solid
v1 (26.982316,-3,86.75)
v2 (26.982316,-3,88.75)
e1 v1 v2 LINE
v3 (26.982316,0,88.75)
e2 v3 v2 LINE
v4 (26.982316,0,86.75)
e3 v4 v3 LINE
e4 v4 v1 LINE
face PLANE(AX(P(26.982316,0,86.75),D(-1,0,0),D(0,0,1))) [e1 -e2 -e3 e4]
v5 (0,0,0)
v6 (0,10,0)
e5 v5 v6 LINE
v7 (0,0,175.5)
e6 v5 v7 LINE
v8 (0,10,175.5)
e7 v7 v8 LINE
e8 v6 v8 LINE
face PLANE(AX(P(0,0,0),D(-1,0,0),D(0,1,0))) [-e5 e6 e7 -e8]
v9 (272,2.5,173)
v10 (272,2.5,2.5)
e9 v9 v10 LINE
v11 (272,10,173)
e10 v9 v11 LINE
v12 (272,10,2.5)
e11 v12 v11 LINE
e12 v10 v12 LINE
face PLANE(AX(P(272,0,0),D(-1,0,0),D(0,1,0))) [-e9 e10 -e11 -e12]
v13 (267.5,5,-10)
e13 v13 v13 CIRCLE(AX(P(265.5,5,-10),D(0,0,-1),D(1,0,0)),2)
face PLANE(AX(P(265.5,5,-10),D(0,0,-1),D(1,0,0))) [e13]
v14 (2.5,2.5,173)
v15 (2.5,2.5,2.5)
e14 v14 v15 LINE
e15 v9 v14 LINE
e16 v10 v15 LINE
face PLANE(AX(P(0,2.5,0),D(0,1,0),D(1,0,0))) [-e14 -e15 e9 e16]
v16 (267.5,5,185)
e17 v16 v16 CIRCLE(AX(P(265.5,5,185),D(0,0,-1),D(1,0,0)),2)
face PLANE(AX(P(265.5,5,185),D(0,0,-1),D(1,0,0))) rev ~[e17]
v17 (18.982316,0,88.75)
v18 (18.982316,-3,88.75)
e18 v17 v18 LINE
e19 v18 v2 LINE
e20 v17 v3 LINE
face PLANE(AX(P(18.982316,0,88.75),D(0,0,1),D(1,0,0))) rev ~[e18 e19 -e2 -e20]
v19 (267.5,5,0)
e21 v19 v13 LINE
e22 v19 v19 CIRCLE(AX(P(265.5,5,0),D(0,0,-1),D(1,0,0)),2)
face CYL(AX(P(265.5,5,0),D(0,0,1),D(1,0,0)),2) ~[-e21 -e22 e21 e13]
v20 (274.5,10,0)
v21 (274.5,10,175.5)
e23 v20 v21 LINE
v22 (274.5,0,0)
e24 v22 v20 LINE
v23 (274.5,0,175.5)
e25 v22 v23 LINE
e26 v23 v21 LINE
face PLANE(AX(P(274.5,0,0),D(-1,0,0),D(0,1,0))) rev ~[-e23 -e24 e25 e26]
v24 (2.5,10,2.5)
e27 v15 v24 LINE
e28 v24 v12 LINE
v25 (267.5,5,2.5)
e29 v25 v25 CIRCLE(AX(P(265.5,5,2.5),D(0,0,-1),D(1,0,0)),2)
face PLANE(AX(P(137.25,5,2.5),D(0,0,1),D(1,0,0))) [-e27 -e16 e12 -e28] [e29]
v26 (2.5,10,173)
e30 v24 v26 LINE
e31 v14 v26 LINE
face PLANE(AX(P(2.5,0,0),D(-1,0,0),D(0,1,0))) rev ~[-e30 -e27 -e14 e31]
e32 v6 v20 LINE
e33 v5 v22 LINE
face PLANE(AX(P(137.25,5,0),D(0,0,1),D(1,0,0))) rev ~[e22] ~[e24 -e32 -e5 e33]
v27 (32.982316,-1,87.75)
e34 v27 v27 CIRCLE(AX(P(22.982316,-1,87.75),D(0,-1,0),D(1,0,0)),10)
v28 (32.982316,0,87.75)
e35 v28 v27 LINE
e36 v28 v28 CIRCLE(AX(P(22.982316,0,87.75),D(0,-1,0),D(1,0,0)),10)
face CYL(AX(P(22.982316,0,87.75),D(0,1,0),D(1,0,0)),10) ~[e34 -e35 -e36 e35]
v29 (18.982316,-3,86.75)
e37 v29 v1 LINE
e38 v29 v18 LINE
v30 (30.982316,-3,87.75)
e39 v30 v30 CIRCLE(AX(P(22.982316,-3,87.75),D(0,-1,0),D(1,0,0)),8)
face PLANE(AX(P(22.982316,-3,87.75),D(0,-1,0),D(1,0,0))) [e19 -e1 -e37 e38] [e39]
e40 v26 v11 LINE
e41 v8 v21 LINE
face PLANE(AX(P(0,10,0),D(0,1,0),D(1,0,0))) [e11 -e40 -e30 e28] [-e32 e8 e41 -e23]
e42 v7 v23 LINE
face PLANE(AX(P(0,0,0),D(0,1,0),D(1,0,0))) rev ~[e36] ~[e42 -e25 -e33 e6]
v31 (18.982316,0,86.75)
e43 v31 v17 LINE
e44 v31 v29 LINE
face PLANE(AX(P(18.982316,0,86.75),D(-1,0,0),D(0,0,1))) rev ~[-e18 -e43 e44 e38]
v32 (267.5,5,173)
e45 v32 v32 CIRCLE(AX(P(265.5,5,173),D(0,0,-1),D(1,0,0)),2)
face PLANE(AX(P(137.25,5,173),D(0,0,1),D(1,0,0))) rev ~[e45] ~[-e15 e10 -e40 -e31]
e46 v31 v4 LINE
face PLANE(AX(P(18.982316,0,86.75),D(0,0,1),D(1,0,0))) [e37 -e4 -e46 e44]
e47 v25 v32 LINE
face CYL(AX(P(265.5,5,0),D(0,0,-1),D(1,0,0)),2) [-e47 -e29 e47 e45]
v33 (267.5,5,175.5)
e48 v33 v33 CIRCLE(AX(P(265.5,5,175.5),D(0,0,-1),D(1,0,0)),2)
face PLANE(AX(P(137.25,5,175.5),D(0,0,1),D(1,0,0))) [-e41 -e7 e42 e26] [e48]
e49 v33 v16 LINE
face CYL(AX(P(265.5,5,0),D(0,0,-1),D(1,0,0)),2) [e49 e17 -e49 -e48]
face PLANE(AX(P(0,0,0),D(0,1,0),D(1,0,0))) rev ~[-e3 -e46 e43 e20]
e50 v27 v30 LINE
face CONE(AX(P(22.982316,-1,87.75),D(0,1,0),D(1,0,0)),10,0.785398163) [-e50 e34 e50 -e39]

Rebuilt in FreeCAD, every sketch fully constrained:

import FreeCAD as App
import Part
import Sketcher
from FreeCAD import Vector
Q = App.Units.Quantity


def edges_at(feature, points):
    """Names of the edges that pass closest to the given points."""
    edges = feature.Shape.Edges
    near = lambda p: min(range(len(edges)), key=lambda i: edges[i].distToShape(Part.Vertex(*p))[0])
    return sorted({f"Edge{near(p) + 1}" for p in points})


def faces_at(feature, points):
    """Names of the faces that lie closest to the given points."""
    faces = feature.Shape.Faces
    near = lambda p: min(range(len(faces)), key=lambda i: faces[i].distToShape(Part.Vertex(*p))[0])
    return sorted({f"Face{near(p) + 1}" for p in points})

doc = App.newDocument("Part")
params = doc.addObject("Spreadsheet::Sheet", "Params")
for row, (alias, value) in enumerate([
    ("sketch1_height", "10 mm"),
    ("sketch1_width", "274.5 mm"),
    ("pad1_length", "175.5 mm"),
    ("thickness_wall", "2.5 mm"),
    ("sketch2_diameter", "4 mm"),
    ("pad2_length", "10 mm"),
    ("pad2_length2", "185 mm"),
    ("sketch3_diameter", "20 mm"),
    ("sketch3_width", "8 mm"),
    ("sketch3_height", "2 mm"),
    ("pad3_length", "3 mm"),
    ("chamfer_size", "2 mm"),
], start=1):
    params.set(f"A{row}", alias)
    params.set(f"B{row}", "=" + value)
    params.setAlias(f"B{row}", alias)

body = doc.addObject("PartDesign::Body", "Body")

# Sketch on XY plane
sketch1 = doc.addObject("Sketcher::SketchObject", "Sketch")
body.addObject(sketch1)
sketch1.AttachmentSupport = (doc.XY_Plane, [""])
sketch1.MapMode = "FlatFace"
sketch1.addGeometry(Part.LineSegment(Vector(0, 10, 0), Vector(0, 0, 0)), False)
sketch1.addGeometry(Part.LineSegment(Vector(0, 0, 0), Vector(274, 0, 0)), False)
sketch1.addGeometry(Part.LineSegment(Vector(274, 0, 0), Vector(274, 10, 0)), False)
sketch1.addGeometry(Part.LineSegment(Vector(274, 10, 0), Vector(0, 10, 0)), False)
sketch1.addConstraint(Sketcher.Constraint("Coincident", 0, 2, 1, 1))
sketch1.addConstraint(Sketcher.Constraint("Coincident", 1, 2, 2, 1))
sketch1.addConstraint(Sketcher.Constraint("Coincident", 2, 2, 3, 1))
sketch1.addConstraint(Sketcher.Constraint("Coincident", 3, 2, 0, 1))
sketch1.addConstraint(Sketcher.Constraint("Vertical", 0))
sketch1.addConstraint(Sketcher.Constraint("Horizontal", 1))
sketch1.addConstraint(Sketcher.Constraint("Vertical", 2))
sketch1.addConstraint(Sketcher.Constraint("Horizontal", 3))
sketch1.addConstraint(Sketcher.Constraint("Coincident", 0, 2, -1, 1))
sketch1.addConstraint(Sketcher.Constraint("DistanceY", 0, 2, 0, 1, Q("10 mm")))
sketch1.addConstraint(Sketcher.Constraint("DistanceX", 1, 1, 1, 2, Q("274.5 mm")))
sketch1.setExpression("Constraints[9]", "Params.sketch1_height")
sketch1.setExpression("Constraints[10]", "Params.sketch1_width")
pad1 = doc.addObject("PartDesign::Pad", "Pad")
body.addObject(pad1)
pad1.Profile = sketch1
pad1.setExpression("Length", "Params.pad1_length")
doc.recompute()

thickness = doc.addObject("PartDesign::Thickness", "Thickness")
body.addObject(thickness)
thickness.Base = (pad1, faces_at(pad1, [(137.25, 10, 87.75)]))
thickness.setExpression("Value", "Params.thickness_wall")
thickness.Reversed = True
thickness.Join = "Arc"

# Sketch on XY plane
sketch2 = doc.addObject("Sketcher::SketchObject", "Sketch001")
body.addObject(sketch2)
sketch2.AttachmentSupport = (doc.XY_Plane, [""])
sketch2.MapMode = "FlatFace"
sketch2.addGeometry(Part.Circle(Vector(265.5, 5, 0), Vector(0, 0, 1), 2), False)
sketch2.addConstraint(Sketcher.Constraint("Diameter", 0, Q("4 mm")))
sketch2.addConstraint(Sketcher.Constraint("DistanceY", -1, 1, 0, 3, Q("5 mm")))
sketch2.addConstraint(Sketcher.Constraint("DistanceX", -1, 1, 0, 3, Q("265.5 mm")))
sketch2.setExpression("Constraints[0]", "Params.sketch2_diameter")
pad2 = doc.addObject("PartDesign::Pad", "Pad001")
body.addObject(pad2)
pad2.Profile = sketch2
pad2.Type = "TwoLengths"
pad2.setExpression("Length", "Params.pad2_length")
pad2.setExpression("Length2", "Params.pad2_length2")
pad2.Reversed = True

# Sketch on XZ plane
sketch3 = doc.addObject("Sketcher::SketchObject", "Sketch002")
body.addObject(sketch3)
sketch3.AttachmentSupport = (doc.XZ_Plane, [""])
sketch3.MapMode = "FlatFace"
sketch3.addGeometry(Part.Circle(Vector(23, 87.8, 0), Vector(0, 0, 1), 10), False)
sketch3.addGeometry(Part.LineSegment(Vector(27, 86.8, 0), Vector(19, 86.8, 0)), False)
sketch3.addGeometry(Part.LineSegment(Vector(19, 86.8, 0), Vector(19, 88.8, 0)), False)
sketch3.addGeometry(Part.LineSegment(Vector(19, 88.8, 0), Vector(27, 88.8, 0)), False)
sketch3.addGeometry(Part.LineSegment(Vector(27, 88.8, 0), Vector(27, 86.8, 0)), False)
sketch3.addConstraint(Sketcher.Constraint("Coincident", 1, 2, 2, 1))
sketch3.addConstraint(Sketcher.Constraint("Coincident", 2, 2, 3, 1))
sketch3.addConstraint(Sketcher.Constraint("Coincident", 3, 2, 4, 1))
sketch3.addConstraint(Sketcher.Constraint("Coincident", 4, 2, 1, 1))
sketch3.addConstraint(Sketcher.Constraint("Horizontal", 1))
sketch3.addConstraint(Sketcher.Constraint("Vertical", 2))
sketch3.addConstraint(Sketcher.Constraint("Horizontal", 3))
sketch3.addConstraint(Sketcher.Constraint("Vertical", 4))
sketch3.addConstraint(Sketcher.Constraint("Diameter", 0, Q("20 mm")))
sketch3.addConstraint(Sketcher.Constraint("DistanceX", 1, 2, 1, 1, Q("8 mm")))
sketch3.addConstraint(Sketcher.Constraint("DistanceY", 2, 1, 2, 2, Q("2 mm")))
sketch3.addConstraint(Sketcher.Constraint("DistanceX", 1, 2, 0, 3, Q("4 mm")))
sketch3.addConstraint(Sketcher.Constraint("DistanceY", 1, 2, 0, 3, Q("1 mm")))
sketch3.addConstraint(Sketcher.Constraint("DistanceY", -1, 1, 0, 3, Q("87.75 mm")))
sketch3.addConstraint(Sketcher.Constraint("DistanceX", -1, 1, 0, 3, Q("22.982316 mm")))
sketch3.setExpression("Constraints[8]", "Params.sketch3_diameter")
sketch3.setExpression("Constraints[9]", "Params.sketch3_width")
sketch3.setExpression("Constraints[10]", "Params.sketch3_height")
pad3 = doc.addObject("PartDesign::Pad", "Pad002")
body.addObject(pad3)
pad3.Profile = sketch3
pad3.setExpression("Length", "Params.pad3_length")
doc.recompute()

chamfer = doc.addObject("PartDesign::Chamfer", "Chamfer")
body.addObject(chamfer)
chamfer.Base = (pad3, edges_at(pad3, [(12.982, -3, 87.75)]))
chamfer.setExpression("Size", "Params.chamfer_size")

doc.recompute()
